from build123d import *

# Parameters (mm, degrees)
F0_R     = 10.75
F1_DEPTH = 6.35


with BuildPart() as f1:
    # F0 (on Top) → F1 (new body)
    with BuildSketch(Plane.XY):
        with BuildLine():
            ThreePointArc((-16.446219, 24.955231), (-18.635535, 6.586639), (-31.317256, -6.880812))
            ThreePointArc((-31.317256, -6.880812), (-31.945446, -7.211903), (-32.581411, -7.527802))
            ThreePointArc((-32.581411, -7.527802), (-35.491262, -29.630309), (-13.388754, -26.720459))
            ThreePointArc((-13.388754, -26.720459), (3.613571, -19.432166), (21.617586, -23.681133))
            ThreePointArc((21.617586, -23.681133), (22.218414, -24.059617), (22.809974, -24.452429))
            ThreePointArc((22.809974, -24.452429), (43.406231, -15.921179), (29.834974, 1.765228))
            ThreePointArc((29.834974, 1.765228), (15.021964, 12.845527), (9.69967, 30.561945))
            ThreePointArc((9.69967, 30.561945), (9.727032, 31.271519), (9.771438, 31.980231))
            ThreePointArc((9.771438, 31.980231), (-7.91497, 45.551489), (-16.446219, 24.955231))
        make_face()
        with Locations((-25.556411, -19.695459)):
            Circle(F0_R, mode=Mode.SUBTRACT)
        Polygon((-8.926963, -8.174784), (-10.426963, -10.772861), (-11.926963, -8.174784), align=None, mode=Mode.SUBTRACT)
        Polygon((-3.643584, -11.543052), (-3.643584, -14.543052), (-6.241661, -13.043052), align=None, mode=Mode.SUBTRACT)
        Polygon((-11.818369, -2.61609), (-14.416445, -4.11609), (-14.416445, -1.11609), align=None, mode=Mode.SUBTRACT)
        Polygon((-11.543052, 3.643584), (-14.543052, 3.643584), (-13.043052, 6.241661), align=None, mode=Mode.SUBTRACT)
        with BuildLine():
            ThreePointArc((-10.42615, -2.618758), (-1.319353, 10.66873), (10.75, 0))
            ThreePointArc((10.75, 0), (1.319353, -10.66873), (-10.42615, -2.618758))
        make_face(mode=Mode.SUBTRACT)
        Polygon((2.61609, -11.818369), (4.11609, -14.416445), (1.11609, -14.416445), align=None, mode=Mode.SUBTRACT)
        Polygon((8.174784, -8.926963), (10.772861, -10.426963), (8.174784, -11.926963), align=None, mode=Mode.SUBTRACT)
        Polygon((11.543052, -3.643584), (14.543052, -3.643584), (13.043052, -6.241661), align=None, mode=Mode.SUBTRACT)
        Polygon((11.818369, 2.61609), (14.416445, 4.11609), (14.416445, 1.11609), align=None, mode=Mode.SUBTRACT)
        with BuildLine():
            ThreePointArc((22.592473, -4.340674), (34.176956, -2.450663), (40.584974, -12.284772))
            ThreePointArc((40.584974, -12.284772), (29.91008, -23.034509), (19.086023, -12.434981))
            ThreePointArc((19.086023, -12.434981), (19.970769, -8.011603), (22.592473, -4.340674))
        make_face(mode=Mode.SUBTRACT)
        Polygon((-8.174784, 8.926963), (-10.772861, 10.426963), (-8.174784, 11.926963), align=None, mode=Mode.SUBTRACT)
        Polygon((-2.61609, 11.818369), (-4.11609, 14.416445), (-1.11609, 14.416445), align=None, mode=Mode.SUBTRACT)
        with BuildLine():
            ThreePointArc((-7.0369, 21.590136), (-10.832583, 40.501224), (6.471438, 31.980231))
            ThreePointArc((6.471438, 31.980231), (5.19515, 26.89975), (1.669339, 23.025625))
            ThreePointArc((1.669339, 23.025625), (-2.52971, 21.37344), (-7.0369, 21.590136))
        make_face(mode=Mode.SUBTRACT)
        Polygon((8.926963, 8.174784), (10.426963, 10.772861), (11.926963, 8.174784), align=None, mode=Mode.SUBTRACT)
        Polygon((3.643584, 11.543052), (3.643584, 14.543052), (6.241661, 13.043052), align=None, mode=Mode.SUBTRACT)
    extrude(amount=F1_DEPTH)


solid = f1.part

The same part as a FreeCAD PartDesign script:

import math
import FreeCAD as App
import Part
import Sketcher

V = App.Vector
Q = App.Units.Quantity


def add_polygon(sketch, points):
    """Adds a closed chain of lines whose ends are joined by coincident constraints."""
    first, n = sketch.GeometryCount, len(points)
    for a, b in zip(points, points[1:] + points[:1]):
        sketch.addGeometry(Part.LineSegment(App.Vector(*a, 0), App.Vector(*b, 0)), False)
    for i in range(n):
        sketch.addConstraint(Sketcher.Constraint("Coincident", first + i, 2, first + (i + 1) % n, 1))

doc = App.newDocument("Part")
params = doc.addObject("Spreadsheet::Sheet", "Params")
for row, (alias, value) in enumerate([
    ("sketch1_diameter", "21.5 mm"),
    ("sketch1_width", "3 mm"),
    ("sketch1_width2", "3 mm"),
    ("sketch1_width3", "3 mm"),
    ("sketch1_width4", "3 mm"),
    ("pad1_length", "6.35 mm"),
], start=1):
    params.set(f"A{row}", alias)
    params.set(f"B{row}", "=" + value)
    params.setAlias(f"B{row}", alias)

body = doc.addObject("PartDesign::Body", "Body")

# Sketch on XY plane
sketch1 = body.newObject("Sketcher::SketchObject", "Sketch")
sketch1.AttachmentSupport = (doc.getObject("XY_Plane"), [""])
sketch1.MapMode = "FlatFace"
sketch1.addGeometry(Part.ArcOfCircle(Part.Circle(V(-45.407858, 19.092345, 0), V(0, 0, 1), 29.549111), math.radians(-61.51989), math.radians(11.444088)), False)  # 0
sketch1.addGeometry(Part.ArcOfCircle(Part.Circle(V(-45.40678, 19.090224, 0), V(0, 0, 1), 29.546733), math.radians(-64.273828), math.radians(-61.519765)), False)  # 1
sketch1.addGeometry(Part.ArcOfCircle(Part.Circle(V(-25.556411, -19.695459, 0), V(0, 0, 1), 14.05), math.radians(119.999999), math.radians(330.000001)), False)  # 2
sketch1.addGeometry(Part.ArcOfCircle(Part.Circle(V(6.169473, -48.870529, 0), V(0, 0, 1), 29.549109), math.radians(58.48011), math.radians(131.44409)), False)  # 3
sketch1.addGeometry(Part.ArcOfCircle(Part.Circle(V(6.169091, -48.871129, 0), V(0, 0, 1), 29.54982), math.radians(55.726309), math.radians(58.480086)), False)  # 4
sketch1.addGeometry(Part.ArcOfCircle(Part.Circle(V(29.834973, -12.284772, 0), V(0, 0, 1), 14.05), math.radians(-119.999997), math.radians(89.999997)), False)  # 5
sketch1.addGeometry(Part.ArcOfCircle(Part.Circle(V(39.238383, 29.778185, 0), V(0, 0, 1), 29.549109), math.radians(178.480109), math.radians(251.444092)), False)  # 6
sketch1.addGeometry(Part.ArcOfCircle(Part.Circle(V(39.236367, 29.77829, 0), V(0, 0, 1), 29.547091), math.radians(175.726179), math.radians(178.48021)), False)  # 7
sketch1.addGeometry(Part.ArcOfCircle(Part.Circle(V(-4.278562, 31.980231, 0), V(0, 0, 1), 14.05), math.radians(-0.000001), math.radians(210.000001)), False)  # 8
sketch1.addGeometry(Part.Circle(V(-25.556411, -19.695459, 0), V(0, 0, 1), 10.75), False)  # 9
add_polygon(sketch1, [(-6.241661, -13.043052), (-3.643584, -11.543052), (-3.643584, -14.543052)])  # lines 10-12
add_polygon(sketch1, [(-11.926963, -8.174784), (-8.926963, -8.174784), (-10.426963, -10.772861)])  # lines 13-15
add_polygon(sketch1, [(-14.416445, -1.11609), (-11.818369, -2.61609), (-14.416445, -4.11609)])  # lines 16-18
add_polygon(sketch1, [(-13.043052, 6.241661), (-11.543052, 3.643584), (-14.543052, 3.643584)])  # lines 19-21
sketch1.addGeometry(Part.ArcOfCircle(Part.Circle(V(0, 0, 0), V(0, 0, 1), 10.75), math.radians(-165.900566), math.radians(-0.000002)), False)  # 22
sketch1.addGeometry(Part.ArcOfCircle(Part.Circle(V(0, 0, 0), V(0, 0, 1), 10.75), math.radians(0.000001), math.radians(194.099431)), False)  # 23
add_polygon(sketch1, [(1.11609, -14.416445), (2.61609, -11.818369), (4.11609, -14.416445)])  # lines 24-26
sketch1.addGeometry(Part.ArcOfCircle(Part.Circle(V(29.834973, -12.284772, 0), V(0, 0, 1), 10.75), math.radians(132.354905), math.radians(180.800619)), False)  # 27
sketch1.addGeometry(Part.ArcOfCircle(Part.Circle(V(29.834974, -12.284772, 0), V(0, 0, 1), 10.75), math.radians(-0.000001), math.radians(132.354905)), False)  # 28
sketch1.addGeometry(Part.ArcOfCircle(Part.Circle(V(29.834974, -12.284771, 0), V(0, 0, 1), 10.75), math.radians(-179.199379), math.radians(-0.000005)), False)  # 29
add_polygon(sketch1, [(8.174784, -11.926963), (8.174784, -8.926963), (10.772861, -10.426963)])  # lines 30-32
add_polygon(sketch1, [(13.043052, -6.241661), (11.543052, -3.643584), (14.543052, -3.643584)])  # lines 33-35
add_polygon(sketch1, [(14.416445, 1.11609), (11.818369, 2.61609), (14.416445, 4.11609)])  # lines 36-38
add_polygon(sketch1, [(-8.174784, 11.926963), (-8.174784, 8.926963), (-10.772861, 10.426963)])  # lines 39-41
add_polygon(sketch1, [(-1.11609, 14.416445), (-2.61609, 11.818369), (-4.11609, 14.416445)])  # lines 42-44
sketch1.addGeometry(Part.ArcOfCircle(Part.Circle(V(-4.278562, 31.980231, 0), V(0, 0, 1), 10.75), math.radians(-104.867793), math.radians(-56.406768)), False)  # 45
sketch1.addGeometry(Part.ArcOfCircle(Part.Circle(V(-4.278562, 31.980231, 0), V(0, 0, 1), 10.75), math.radians(-0.000001), math.radians(255.132206)), False)  # 46
sketch1.addGeometry(Part.ArcOfCircle(Part.Circle(V(-4.278559, 31.98023, 0), V(0, 0, 1), 10.749997), math.radians(-56.40678), math.radians(0.000007)), False)  # 47
add_polygon(sketch1, [(11.926963, 8.174784), (8.926963, 8.174784), (10.426963, 10.772861)])  # lines 48-50
add_polygon(sketch1, [(6.241661, 13.043052), (3.643584, 11.543052), (3.643584, 14.543052)])  # lines 51-53
sketch1.addConstraint([
    Sketcher.Constraint("Coincident", 0, 1, 1, 2),
    Sketcher.Constraint("Coincident", 1, 1, 2, 1),
    Sketcher.Constraint("Coincident", 2, 2, 3, 2),
    Sketcher.Constraint("Coincident", 3, 1, 4, 2),
    Sketcher.Constraint("Coincident", 4, 1, 5, 1),
    Sketcher.Constraint("Coincident", 5, 2, 6, 2),
    Sketcher.Constraint("Coincident", 6, 1, 7, 2),
    Sketcher.Constraint("Coincident", 7, 1, 8, 1),
    Sketcher.Constraint("Coincident", 8, 2, 0, 2),
    Sketcher.Constraint("Coincident", 22, 1, 23, 2),
    Sketcher.Constraint("Coincident", 23, 1, 22, 2),
    Sketcher.Constraint("Coincident", 27, 1, 28, 2),
    Sketcher.Constraint("Coincident", 28, 1, 29, 2),
    Sketcher.Constraint("Coincident", 29, 1, 27, 2),
    Sketcher.Constraint("Coincident", 45, 1, 46, 2),
    Sketcher.Constraint("Coincident", 46, 1, 47, 2),
    Sketcher.Constraint("Coincident", 47, 1, 45, 2),
    Sketcher.Constraint("Vertical", 11),
    Sketcher.Constraint("Horizontal", 13),
    Sketcher.Constraint("Vertical", 18),
    Sketcher.Constraint("Horizontal", 20),
    Sketcher.Constraint("Horizontal", 26),
    Sketcher.Constraint("Vertical", 30),
    Sketcher.Constraint("Horizontal", 34),
    Sketcher.Constraint("Vertical", 38),
    Sketcher.Constraint("Vertical", 39),
    Sketcher.Constraint("Horizontal", 44),
    Sketcher.Constraint("Horizontal", 48),
    Sketcher.Constraint("Vertical", 52),
    Sketcher.Constraint("Coincident", 22, 3, -1, 1),
    Sketcher.Constraint("Coincident", 9, 3, 2, 3),
    Sketcher.Constraint("Coincident", 27, 3, 5, 3),
    Sketcher.Constraint("Coincident", 28, 3, 5, 3),
    Sketcher.Constraint("Coincident", 45, 3, 8, 3),
    Sketcher.Constraint("Coincident", 46, 3, 8, 3),
    Sketcher.Constraint("PointOnObject", 23, 1, -1),
    Sketcher.Constraint("Diameter", 9, Q("21.5 mm")),
    Sketcher.Constraint("DistanceX", 13, 1, 13, 2, Q("3 mm")),
    Sketcher.Constraint("DistanceX", 20, 2, 20, 1, Q("3 mm")),
    Sketcher.Constraint("DistanceX", 26, 2, 26, 1, Q("3 mm")),
    Sketcher.Constraint("DistanceX", 34, 1, 34, 2, Q("3 mm")),
    Sketcher.Constraint("DistanceX", 44, 1, 44, 2, Q("3 mm")),
    Sketcher.Constraint("DistanceX", 48, 2, 48, 1, Q("3 mm")),
    Sketcher.Constraint("DistanceY", 11, 2, 11, 1, Q("3 mm")),
    Sketcher.Constraint("DistanceY", 18, 1, 18, 2, Q("3 mm")),
    Sketcher.Constraint("DistanceY", 30, 1, 30, 2, Q("3 mm")),
    Sketcher.Constraint("DistanceY", 38, 2, 38, 1, Q("3 mm")),
    Sketcher.Constraint("DistanceY", 39, 2, 39, 1, Q("3 mm")),
    Sketcher.Constraint("DistanceY", 52, 1, 52, 2, Q("3 mm")),
    Sketcher.Constraint("Radius", 2, Q("14.05 mm")),
    Sketcher.Constraint("Radius", 5, Q("14.05 mm")),
    Sketcher.Constraint("Radius", 8, Q("14.05 mm")),
    Sketcher.Constraint("Radius", 22, Q("10.75 mm")),
    Sketcher.Constraint("Radius", 23, Q("10.75 mm")),
    Sketcher.Constraint("Radius", 27, Q("10.75 mm")),
    Sketcher.Constraint("Radius", 29, Q("10.75 mm")),
    Sketcher.Constraint("Radius", 45, Q("10.75 mm")),
    Sketcher.Constraint("Distance", 10, Q("3.000001 mm")),
    Sketcher.Constraint("Distance", 12, Q("3.000001 mm")),
    Sketcher.Constraint("Distance", 14, Q("3.000001 mm")),
    Sketcher.Constraint("Distance", 15, Q("3.000001 mm")),
    Sketcher.Constraint("Distance", 16, Q("3 mm")),
    Sketcher.Constraint("Distance", 17, Q("3 mm")),
    Sketcher.Constraint("Distance", 19, Q("3.000001 mm")),
    Sketcher.Constraint("Distance", 21, Q("3.000001 mm")),
    Sketcher.Constraint("Distance", 24, Q("3 mm")),
    Sketcher.Constraint("Distance", 25, Q("3 mm")),
    Sketcher.Constraint("Distance", 31, Q("3.000001 mm")),
    Sketcher.Constraint("Distance", 32, Q("3.000001 mm")),
    Sketcher.Constraint("Distance", 33, Q("3.000001 mm")),
    Sketcher.Constraint("Distance", 35, Q("3.000001 mm")),
    Sketcher.Constraint("Distance", 36, Q("3 mm")),
    Sketcher.Constraint("Distance", 37, Q("3 mm")),
    Sketcher.Constraint("Distance", 40, Q("3.000001 mm")),
    Sketcher.Constraint("Distance", 41, Q("3.000001 mm")),
    Sketcher.Constraint("Distance", 42, Q("3 mm")),
    Sketcher.Constraint("Distance", 43, Q("3 mm")),
    Sketcher.Constraint("Distance", 49, Q("3.000001 mm")),
    Sketcher.Constraint("Distance", 50, Q("3.000001 mm")),
    Sketcher.Constraint("Distance", 51, Q("3.000001 mm")),
    Sketcher.Constraint("Distance", 53, Q("3.000001 mm")),
    Sketcher.Constraint("Radius", 0, Q("29.549111 mm")),
    Sketcher.Constraint("Radius", 3, Q("29.549109 mm")),
    Sketcher.Constraint("Radius", 4, Q("29.54982 mm")),
    Sketcher.Constraint("Radius", 6, Q("29.549109 mm")),
    Sketcher.Constraint("Radius", 7, Q("29.547091 mm")),
    Sketcher.Constraint("Radius", 1, Q("29.546733 mm")),
    Sketcher.Constraint("Radius", 47, Q("10.749997 mm")),
    Sketcher.Constraint("DistanceY", 1, 1, -1, 1, Q("7.527802 mm")),
    Sketcher.Constraint("DistanceX", 45, 1, -1, 1, Q("7.0369 mm")),
    Sketcher.Constraint("DistanceX", 1, 3, -1, 1, Q("45.40678 mm")),
    Sketcher.Constraint("DistanceX", 2, 3, -1, 1, Q("25.556411 mm")),
    Sketcher.Constraint("DistanceY", 2, 3, -1, 1, Q("19.695459 mm")),
    Sketcher.Constraint("DistanceY", 3, 3, -1, 1, Q("48.870529 mm")),
    Sketcher.Constraint("DistanceX", -1, 1, 4, 3, Q("6.169091 mm")),
    Sketcher.Constraint("DistanceY", 4, 3, -1, 1, Q("48.871129 mm")),
    Sketcher.Constraint("DistanceY", 5, 3, -1, 1, Q("12.284772 mm")),
    Sketcher.Constraint("DistanceY", -1, 1, 7, 3, Q("29.77829 mm")),
    Sketcher.Constraint("DistanceY", -1, 1, 8, 3, Q("31.980231 mm")),
    Sketcher.Constraint("DistanceX", 47, 3, -1, 1, Q("4.278559 mm")),
    Sketcher.Constraint("DistanceY", 0, 1, -1, 1, Q("6.880812 mm")),
    Sketcher.Constraint("DistanceY", 4, 1, -1, 1, Q("24.452429 mm")),
    Sketcher.Constraint("DistanceX", -1, 1, 6, 1, Q("9.69967 mm")),
    Sketcher.Constraint("DistanceY", -1, 1, 7, 1, Q("31.980231 mm")),
    Sketcher.Constraint("DistanceX", 8, 2, -1, 1, Q("16.446219 mm")),
    Sketcher.Constraint("DistanceX", 12, 2, -1, 1, Q("6.241661 mm")),
    Sketcher.Constraint("DistanceY", 14, 2, -1, 1, Q("10.772861 mm")),
    Sketcher.Constraint("DistanceX", 16, 2, -1, 1, Q("11.818369 mm")),
    Sketcher.Constraint("DistanceY", 16, 2, -1, 1, Q("2.61609 mm")),
    Sketcher.Constraint("DistanceY", -1, 1, 21, 2, Q("6.241661 mm")),
    Sketcher.Constraint("DistanceX", 22, 1, -1, 1, Q("10.42615 mm")),
    Sketcher.Constraint("DistanceX", -1, 1, 24, 2, Q("2.61609 mm")),
    Sketcher.Constraint("DistanceY", 24, 2, -1, 1, Q("11.818369 mm")),
    Sketcher.Constraint("DistanceY", 29, 1, -1, 1, Q("12.434981 mm")),
    Sketcher.Constraint("DistanceX", -1, 1, 31, 2, Q("10.772861 mm")),
    Sketcher.Constraint("DistanceY", 35, 2, -1, 1, Q("6.241661 mm")),
    Sketcher.Constraint("DistanceX", -1, 1, 36, 2, Q("11.818369 mm")),
    Sketcher.Constraint("DistanceY", -1, 1, 36, 2, Q("2.61609 mm")),
    Sketcher.Constraint("DistanceX", 40, 2, -1, 1, Q("10.772861 mm")),
    Sketcher.Constraint("DistanceX", 42, 2, -1, 1, Q("2.61609 mm")),
    Sketcher.Constraint("DistanceY", -1, 1, 42, 2, Q("11.818369 mm")),
    Sketcher.Constraint("DistanceY", -1, 1, 46, 1, Q("31.980231 mm")),
    Sketcher.Constraint("DistanceX", -1, 1, 47, 1, Q("1.669339 mm")),
    Sketcher.Constraint("DistanceY", -1, 1, 49, 2, Q("10.772861 mm")),
    Sketcher.Constraint("DistanceX", -1, 1, 53, 2, Q("6.241661 mm")),
    Sketcher.Constraint("DistanceX", -1, 1, 6, 3, Q("39.238383 mm")),
    Sketcher.Constraint("DistanceX", -1, 1, 3, 1, Q("21.617586 mm")),
    Sketcher.Constraint("DistanceY", 10, 2, -1, 1, Q("11.543052 mm")),
    Sketcher.Constraint("DistanceX", 13, 2, -1, 1, Q("8.926963 mm")),
    Sketcher.Constraint("DistanceX", 19, 2, -1, 1, Q("11.543052 mm")),
    Sketcher.Constraint("DistanceX", -1, 1, 27, 1, Q("22.592473 mm")),
    Sketcher.Constraint("DistanceY", 28, 1, -1, 1, Q("12.284772 mm")),
    Sketcher.Constraint("DistanceY", 30, 2, -1, 1, Q("8.926963 mm")),
    Sketcher.Constraint("DistanceX", -1, 1, 33, 2, Q("11.543052 mm")),
    Sketcher.Constraint("DistanceY", -1, 1, 39, 2, Q("8.926963 mm")),
    Sketcher.Constraint("DistanceX", -1, 1, 48, 2, Q("8.926963 mm")),
    Sketcher.Constraint("DistanceY", -1, 1, 51, 2, Q("11.543052 mm")),
])
sketch1.setExpression("Constraints[72]", "Params.sketch1_diameter")
sketch1.setExpression("Constraints[73]", "Params.sketch1_width")
sketch1.setExpression("Constraints[74]", "Params.sketch1_width2")
sketch1.setExpression("Constraints[75]", "Params.sketch1_width3")
sketch1.setExpression("Constraints[76]", "Params.sketch1_width4")
pad1 = body.newObject("PartDesign::Pad", "Pad")
pad1.Profile = sketch1
pad1.setExpression("Length", "Params.pad1_length")

doc.recompute()
